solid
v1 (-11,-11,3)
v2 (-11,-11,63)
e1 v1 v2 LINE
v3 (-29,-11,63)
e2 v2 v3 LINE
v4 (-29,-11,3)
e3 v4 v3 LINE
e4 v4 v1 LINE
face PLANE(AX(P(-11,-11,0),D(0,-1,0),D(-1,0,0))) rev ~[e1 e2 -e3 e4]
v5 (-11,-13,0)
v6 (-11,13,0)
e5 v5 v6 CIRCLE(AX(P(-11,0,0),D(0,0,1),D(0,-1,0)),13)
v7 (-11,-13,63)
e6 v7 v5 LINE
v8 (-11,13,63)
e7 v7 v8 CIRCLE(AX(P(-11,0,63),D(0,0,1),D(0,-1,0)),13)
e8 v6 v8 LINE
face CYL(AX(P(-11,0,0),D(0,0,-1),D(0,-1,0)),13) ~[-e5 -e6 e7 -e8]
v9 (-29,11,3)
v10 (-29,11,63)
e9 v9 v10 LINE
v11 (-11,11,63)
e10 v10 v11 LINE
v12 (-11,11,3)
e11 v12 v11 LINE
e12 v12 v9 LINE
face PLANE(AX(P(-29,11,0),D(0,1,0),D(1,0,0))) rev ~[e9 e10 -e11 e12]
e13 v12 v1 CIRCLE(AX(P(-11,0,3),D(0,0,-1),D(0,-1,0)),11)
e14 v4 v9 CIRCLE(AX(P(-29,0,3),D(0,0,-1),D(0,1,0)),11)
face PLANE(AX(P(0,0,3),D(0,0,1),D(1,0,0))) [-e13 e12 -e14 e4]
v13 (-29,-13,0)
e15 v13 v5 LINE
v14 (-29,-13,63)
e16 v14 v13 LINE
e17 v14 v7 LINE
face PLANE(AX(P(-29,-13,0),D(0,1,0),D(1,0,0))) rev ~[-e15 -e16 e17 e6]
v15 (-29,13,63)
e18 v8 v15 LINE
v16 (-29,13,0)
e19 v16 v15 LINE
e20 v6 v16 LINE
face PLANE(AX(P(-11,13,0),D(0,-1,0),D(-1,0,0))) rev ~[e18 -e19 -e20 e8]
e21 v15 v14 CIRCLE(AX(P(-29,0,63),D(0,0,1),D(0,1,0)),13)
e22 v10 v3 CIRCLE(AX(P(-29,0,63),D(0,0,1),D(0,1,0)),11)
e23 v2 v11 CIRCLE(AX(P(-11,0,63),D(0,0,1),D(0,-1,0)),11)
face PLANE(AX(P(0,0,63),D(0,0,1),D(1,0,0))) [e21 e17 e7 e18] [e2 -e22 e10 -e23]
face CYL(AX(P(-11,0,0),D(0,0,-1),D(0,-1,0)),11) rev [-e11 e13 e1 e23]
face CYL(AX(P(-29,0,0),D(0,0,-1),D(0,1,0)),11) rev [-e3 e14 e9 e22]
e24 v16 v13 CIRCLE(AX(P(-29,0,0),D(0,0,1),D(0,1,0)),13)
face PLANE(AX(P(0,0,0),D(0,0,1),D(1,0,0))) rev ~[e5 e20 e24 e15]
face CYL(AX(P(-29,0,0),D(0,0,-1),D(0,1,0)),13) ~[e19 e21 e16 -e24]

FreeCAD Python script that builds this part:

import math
import FreeCAD as App
import Part
import Sketcher

V = App.Vector
Q = App.Units.Quantity

doc = App.newDocument("Part")
body = doc.addObject("PartDesign::Body", "Body")

sketch1 = doc.addObject("Sketcher::SketchObject", "Sketch")
body.addObject(sketch1)
sketch1.AttachmentSupport = (doc.XY_Plane, [""])
sketch1.MapMode = "FlatFace"
sketch1.addGeometry([
    Part.ArcOfCircle(Part.Circle(V(-11, 0, 0), V(0, 0, 1), 13), math.radians(-90), math.radians(90)),
    Part.LineSegment(V(-11, 13, 0), V(-29, 13, 0)),
    Part.ArcOfCircle(Part.Circle(V(-29, 0, 0), V(0, 0, 1), 13), math.radians(90), math.radians(270)),
    Part.LineSegment(V(-29, -13, 0), V(-11, -13, 0)),
], False)
sketch1.addConstraint([
    Sketcher.Constraint("Tangent", 0, 2, 1, 1),
    Sketcher.Constraint("Tangent", 1, 2, 2, 1),
    Sketcher.Constraint("Tangent", 2, 2, 3, 1),
    Sketcher.Constraint("Tangent", 3, 2, 0, 1),
    Sketcher.Constraint("Horizontal", 1),
    Sketcher.Constraint("Horizontal", 3),
    Sketcher.Constraint("PointOnObject", 0, 3, -1),
    Sketcher.Constraint("Radius", 0, Q("13 mm")),
    Sketcher.Constraint("DistanceX", 1, 2, 1, 1, Q("18 mm")),
    Sketcher.Constraint("DistanceX", 0, 3, -1, 1, Q("11 mm")),
])
pad1 = doc.addObject("PartDesign::Pad", "Pad")
body.addObject(pad1)
pad1.Profile = sketch1
pad1.Length = 3

sketch2 = doc.addObject("Sketcher::SketchObject", "Sketch001")
body.addObject(sketch2)
sketch2.AttachmentSupport = (doc.XY_Plane, [""])
sketch2.MapMode = "FlatFace"
sketch2.addGeometry([
    Part.ArcOfCircle(Part.Circle(V(-11, 0, 0), V(0, 0, 1), 13), math.radians(-90), math.radians(90)),
    Part.LineSegment(V(-11, 13, 0), V(-29, 13, 0)),
    Part.ArcOfCircle(Part.Circle(V(-29, 0, 0), V(0, 0, 1), 13), math.radians(90), math.radians(270)),
    Part.LineSegment(V(-29, -13, 0), V(-11, -13, 0)),
    Part.ArcOfCircle(Part.Circle(V(-29, 0, 0), V(0, 0, 1), 11), math.radians(90), math.radians(270)),
    Part.LineSegment(V(-29, 11, 0), V(-11, 11, 0)),
    Part.ArcOfCircle(Part.Circle(V(-11, 0, 0), V(0, 0, 1), 11), math.radians(-90), math.radians(90)),
    Part.LineSegment(V(-11, -11, 0), V(-29, -11, 0)),
], False)
sketch2.addConstraint([
    Sketcher.Constraint("Tangent", 0, 2, 1, 1),
    Sketcher.Constraint("Tangent", 1, 2, 2, 1),
    Sketcher.Constraint("Tangent", 2, 2, 3, 1),
    Sketcher.Constraint("Tangent", 3, 2, 0, 1),
    Sketcher.Constraint("Tangent", 4, 1, 5, 1),
    Sketcher.Constraint("Tangent", 5, 2, 6, 2),
    Sketcher.Constraint("Tangent", 6, 1, 7, 1),
    Sketcher.Constraint("Tangent", 7, 2, 4, 2),
    Sketcher.Constraint("Horizontal", 1),
    Sketcher.Constraint("Horizontal", 3),
    Sketcher.Constraint("Horizontal", 5),
    Sketcher.Constraint("Horizontal", 7),
    Sketcher.Constraint("Coincident", 4, 3, 2, 3),
    Sketcher.Constraint("PointOnObject", 0, 3, -1),
    Sketcher.Constraint("Vertical", 6, 3, 0, 2),
    Sketcher.Constraint("Radius", 4, Q("11 mm")),
    Sketcher.Constraint("Radius", 0, Q("13 mm")),
    Sketcher.Constraint("DistanceX", 1, 2, 1, 1, Q("18 mm")),
    Sketcher.Constraint("DistanceX", 0, 3, -1, 1, Q("11 mm")),
])
pad2 = doc.addObject("PartDesign::Pad", "Pad001")
body.addObject(pad2)
pad2.Profile = sketch2
pad2.Length = 63

doc.recompute()
